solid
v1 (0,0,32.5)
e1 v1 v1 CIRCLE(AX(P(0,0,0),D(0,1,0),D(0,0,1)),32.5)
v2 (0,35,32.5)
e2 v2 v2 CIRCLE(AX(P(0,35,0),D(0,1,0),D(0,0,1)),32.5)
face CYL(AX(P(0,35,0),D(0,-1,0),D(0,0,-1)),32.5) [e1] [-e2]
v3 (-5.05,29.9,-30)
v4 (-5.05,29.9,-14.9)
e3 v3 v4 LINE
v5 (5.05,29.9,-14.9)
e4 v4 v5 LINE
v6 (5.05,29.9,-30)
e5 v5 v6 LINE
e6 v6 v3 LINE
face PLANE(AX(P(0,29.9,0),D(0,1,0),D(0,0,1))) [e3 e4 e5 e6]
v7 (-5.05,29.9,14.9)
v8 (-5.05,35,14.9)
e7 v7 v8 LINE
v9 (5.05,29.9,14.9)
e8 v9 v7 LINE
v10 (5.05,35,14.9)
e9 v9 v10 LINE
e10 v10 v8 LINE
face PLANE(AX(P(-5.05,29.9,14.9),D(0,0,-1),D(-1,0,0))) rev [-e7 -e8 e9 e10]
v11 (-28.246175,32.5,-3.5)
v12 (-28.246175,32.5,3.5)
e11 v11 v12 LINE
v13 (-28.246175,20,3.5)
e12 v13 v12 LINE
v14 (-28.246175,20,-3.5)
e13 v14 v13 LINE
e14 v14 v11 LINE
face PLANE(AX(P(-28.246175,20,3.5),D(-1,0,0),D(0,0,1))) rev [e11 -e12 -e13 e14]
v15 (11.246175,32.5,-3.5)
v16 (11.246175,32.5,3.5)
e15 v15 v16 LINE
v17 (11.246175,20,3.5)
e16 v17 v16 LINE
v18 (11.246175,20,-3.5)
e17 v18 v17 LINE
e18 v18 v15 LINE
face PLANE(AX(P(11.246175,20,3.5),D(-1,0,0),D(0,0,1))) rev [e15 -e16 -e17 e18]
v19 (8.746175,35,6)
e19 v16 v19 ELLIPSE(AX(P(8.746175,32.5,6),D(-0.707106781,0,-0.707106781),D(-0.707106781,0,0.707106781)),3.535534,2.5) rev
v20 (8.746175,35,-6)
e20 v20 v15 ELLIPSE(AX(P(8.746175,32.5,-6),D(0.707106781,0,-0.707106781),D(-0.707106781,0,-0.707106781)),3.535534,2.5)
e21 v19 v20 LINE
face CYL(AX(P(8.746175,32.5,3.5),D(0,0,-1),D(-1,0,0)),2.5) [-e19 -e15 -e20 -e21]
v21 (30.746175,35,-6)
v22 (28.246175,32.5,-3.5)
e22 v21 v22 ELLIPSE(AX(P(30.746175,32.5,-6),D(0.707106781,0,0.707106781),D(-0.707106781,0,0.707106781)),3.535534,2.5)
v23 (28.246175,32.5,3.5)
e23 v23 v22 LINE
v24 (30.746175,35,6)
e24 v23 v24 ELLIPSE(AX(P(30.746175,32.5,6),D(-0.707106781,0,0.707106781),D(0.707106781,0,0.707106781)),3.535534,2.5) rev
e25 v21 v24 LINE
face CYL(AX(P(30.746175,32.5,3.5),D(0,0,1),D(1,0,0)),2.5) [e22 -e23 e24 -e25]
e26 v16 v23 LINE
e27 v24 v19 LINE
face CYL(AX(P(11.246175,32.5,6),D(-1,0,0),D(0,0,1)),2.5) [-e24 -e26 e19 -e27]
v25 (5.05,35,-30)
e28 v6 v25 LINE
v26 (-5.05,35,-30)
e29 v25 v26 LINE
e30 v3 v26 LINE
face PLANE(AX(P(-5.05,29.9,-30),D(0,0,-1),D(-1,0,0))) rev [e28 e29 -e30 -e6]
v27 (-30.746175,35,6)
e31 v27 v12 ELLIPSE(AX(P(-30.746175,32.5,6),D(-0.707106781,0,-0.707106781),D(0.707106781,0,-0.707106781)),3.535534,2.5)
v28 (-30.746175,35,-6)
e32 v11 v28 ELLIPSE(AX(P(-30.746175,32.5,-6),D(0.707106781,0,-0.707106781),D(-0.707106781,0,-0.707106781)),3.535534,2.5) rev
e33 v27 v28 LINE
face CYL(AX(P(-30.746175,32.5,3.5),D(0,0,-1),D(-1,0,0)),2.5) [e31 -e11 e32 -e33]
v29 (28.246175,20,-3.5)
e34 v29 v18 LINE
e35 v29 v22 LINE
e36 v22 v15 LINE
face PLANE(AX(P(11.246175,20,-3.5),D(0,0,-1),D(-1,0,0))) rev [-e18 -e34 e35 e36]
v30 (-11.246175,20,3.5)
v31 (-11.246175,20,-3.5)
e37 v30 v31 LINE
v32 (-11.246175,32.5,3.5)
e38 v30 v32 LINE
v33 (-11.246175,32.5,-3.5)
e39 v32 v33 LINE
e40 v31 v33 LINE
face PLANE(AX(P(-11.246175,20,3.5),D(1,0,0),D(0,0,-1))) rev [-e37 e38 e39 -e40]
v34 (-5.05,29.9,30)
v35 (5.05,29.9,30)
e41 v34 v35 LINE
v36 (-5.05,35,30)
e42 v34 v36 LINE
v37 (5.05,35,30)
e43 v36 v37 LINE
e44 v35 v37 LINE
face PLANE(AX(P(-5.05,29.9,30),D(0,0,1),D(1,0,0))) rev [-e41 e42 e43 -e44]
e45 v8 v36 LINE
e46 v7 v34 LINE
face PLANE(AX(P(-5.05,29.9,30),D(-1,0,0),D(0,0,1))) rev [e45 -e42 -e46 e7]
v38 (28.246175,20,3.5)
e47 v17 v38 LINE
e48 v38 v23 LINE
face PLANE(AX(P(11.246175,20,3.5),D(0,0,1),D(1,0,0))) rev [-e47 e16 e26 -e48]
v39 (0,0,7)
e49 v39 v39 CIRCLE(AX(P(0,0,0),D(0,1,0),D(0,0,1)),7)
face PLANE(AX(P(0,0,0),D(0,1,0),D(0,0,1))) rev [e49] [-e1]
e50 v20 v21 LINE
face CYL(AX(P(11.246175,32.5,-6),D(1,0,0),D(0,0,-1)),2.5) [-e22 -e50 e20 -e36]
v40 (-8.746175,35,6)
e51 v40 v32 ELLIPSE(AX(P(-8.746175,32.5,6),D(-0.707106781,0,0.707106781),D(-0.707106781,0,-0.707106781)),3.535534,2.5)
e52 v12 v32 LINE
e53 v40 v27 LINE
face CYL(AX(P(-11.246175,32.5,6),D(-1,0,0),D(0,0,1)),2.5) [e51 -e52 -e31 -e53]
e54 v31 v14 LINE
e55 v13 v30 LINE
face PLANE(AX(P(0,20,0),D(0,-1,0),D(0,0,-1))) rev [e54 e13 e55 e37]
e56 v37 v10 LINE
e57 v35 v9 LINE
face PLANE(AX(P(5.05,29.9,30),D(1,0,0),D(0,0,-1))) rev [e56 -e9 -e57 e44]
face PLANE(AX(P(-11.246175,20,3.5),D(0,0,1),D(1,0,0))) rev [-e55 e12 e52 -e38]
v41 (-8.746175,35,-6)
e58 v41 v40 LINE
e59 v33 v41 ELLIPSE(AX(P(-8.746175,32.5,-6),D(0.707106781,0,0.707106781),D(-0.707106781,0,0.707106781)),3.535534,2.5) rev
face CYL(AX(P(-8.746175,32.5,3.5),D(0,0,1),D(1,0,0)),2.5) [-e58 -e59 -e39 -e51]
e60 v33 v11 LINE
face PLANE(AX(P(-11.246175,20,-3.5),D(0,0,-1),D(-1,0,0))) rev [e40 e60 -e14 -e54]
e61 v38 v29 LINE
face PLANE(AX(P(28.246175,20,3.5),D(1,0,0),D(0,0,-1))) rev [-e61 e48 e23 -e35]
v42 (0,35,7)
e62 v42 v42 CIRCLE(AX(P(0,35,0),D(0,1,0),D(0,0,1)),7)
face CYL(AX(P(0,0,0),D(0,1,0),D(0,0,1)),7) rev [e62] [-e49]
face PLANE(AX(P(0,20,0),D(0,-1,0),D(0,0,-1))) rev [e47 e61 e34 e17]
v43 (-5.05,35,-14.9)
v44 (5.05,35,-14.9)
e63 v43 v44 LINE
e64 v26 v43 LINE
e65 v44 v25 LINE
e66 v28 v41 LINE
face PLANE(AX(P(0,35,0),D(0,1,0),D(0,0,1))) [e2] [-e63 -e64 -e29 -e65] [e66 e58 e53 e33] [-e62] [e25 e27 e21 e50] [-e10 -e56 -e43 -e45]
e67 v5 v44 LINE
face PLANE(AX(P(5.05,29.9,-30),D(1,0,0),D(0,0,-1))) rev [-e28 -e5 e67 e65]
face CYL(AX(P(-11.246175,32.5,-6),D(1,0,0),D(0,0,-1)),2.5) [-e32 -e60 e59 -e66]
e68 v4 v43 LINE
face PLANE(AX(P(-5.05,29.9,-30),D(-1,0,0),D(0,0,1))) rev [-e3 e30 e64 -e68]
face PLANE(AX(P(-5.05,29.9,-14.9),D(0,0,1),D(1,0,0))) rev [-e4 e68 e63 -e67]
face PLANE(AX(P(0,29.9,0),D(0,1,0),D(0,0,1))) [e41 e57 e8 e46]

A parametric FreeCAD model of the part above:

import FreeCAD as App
import Part
import Sketcher
from FreeCAD import Vector
Q = App.Units.Quantity


def edges_at(feature, points):
    """Names of the edges that pass closest to the given points."""
    edges = feature.Shape.Edges
    near = lambda p: min(range(len(edges)), key=lambda i: edges[i].distToShape(Part.Vertex(*p))[0])
    return sorted({f"Edge{near(p) + 1}" for p in points})


def add_polygon(sketch, points):
    """Adds a closed chain of lines whose ends are joined by coincident constraints."""
    first, n = sketch.GeometryCount, len(points)
    for a, b in zip(points, points[1:] + points[:1]):
        sketch.addGeometry(Part.LineSegment(App.Vector(*a, 0), App.Vector(*b, 0)), False)
    for i in range(n):
        sketch.addConstraint(Sketcher.Constraint("Coincident", first + i, 2, first + (i + 1) % n, 1))

doc = App.newDocument("Part")
body = doc.addObject("PartDesign::Body", "Body")

# Sketch on XZ plane
sketch1 = body.newObject("Sketcher::SketchObject", "Sketch")
sketch1.AttachmentSupport = (doc.getObject("XZ_Plane"), [""])
sketch1.MapMode = "FlatFace"
sketch1.addGeometry(Part.Circle(Vector(0, 0, 0), Vector(0, 0, 1), 32), False)
sketch1.addConstraint([
    Sketcher.Constraint("Coincident", 0, 3, -1, 1),
    Sketcher.Constraint("Diameter", 0, Q("65 mm")),
])
pad1 = body.newObject("PartDesign::Pad", "Pad")
pad1.Profile = sketch1
pad1.Length = 35
pad1.Reversed = True

# Sketch on XZ plane
sketch2 = body.newObject("Sketcher::SketchObject", "Sketch001")
sketch2.AttachmentSupport = (doc.getObject("XZ_Plane"), [""])
sketch2.MapMode = "FlatFace"
sketch2.AttachmentOffset = App.Placement(Vector(0, 0, -35), App.Rotation())
add_polygon(sketch2, [(-5, -30), (-5, -15), (5, -15), (5, -30)])  # lines 0-3
add_polygon(sketch2, [(-5, 15), (-5, 30), (5, 30), (5, 15)])  # lines 4-7
sketch2.addConstraint([
    Sketcher.Constraint("Vertical", 0),
    Sketcher.Constraint("Horizontal", 1),
    Sketcher.Constraint("Vertical", 2),
    Sketcher.Constraint("Horizontal", 3),
    Sketcher.Constraint("Vertical", 4),
    Sketcher.Constraint("Horizontal", 5),
    Sketcher.Constraint("Vertical", 6),
    Sketcher.Constraint("Horizontal", 7),
    Sketcher.Constraint("Symmetric", 2, 2, 4, 2, -1, 1),
    Sketcher.Constraint("Symmetric", 0, 2, 6, 2, -1, 1),
    Sketcher.Constraint("Vertical", 3, 2, 4, 2),
    Sketcher.Constraint("DistanceX", 1, 1, 1, 2, Q("10.1 mm")),
    Sketcher.Constraint("DistanceY", 0, 1, 0, 2, Q("15.1 mm")),
    Sketcher.Constraint("DistanceY", 2, 2, -1, 1, Q("30 mm")),
])
pocket1 = body.newObject("PartDesign::Pocket", "Pocket")
pocket1.Profile = sketch2
pocket1.Length = 5.1
pocket1.Reversed = True

# Sketch on XZ plane
sketch3 = body.newObject("Sketcher::SketchObject", "Sketch002")
sketch3.AttachmentSupport = (doc.getObject("XZ_Plane"), [""])
sketch3.MapMode = "FlatFace"
sketch3.AttachmentOffset = App.Placement(Vector(0, 0, -35), App.Rotation())
sketch3.addGeometry(Part.Circle(Vector(0, 0, 0), Vector(0, 0, 1), 7), False)
sketch3.addConstraint([
    Sketcher.Constraint("Coincident", 0, 3, -1, 1),
    Sketcher.Constraint("Diameter", 0, Q("14 mm")),
])
pocket2 = body.newObject("PartDesign::Pocket", "Pocket001")
pocket2.Profile = sketch3
pocket2.Type = "ThroughAll"
pocket2.Reversed = True

# Sketch on XZ plane
sketch4 = body.newObject("Sketcher::SketchObject", "Sketch003")
sketch4.AttachmentSupport = (doc.getObject("XZ_Plane"), [""])
sketch4.MapMode = "FlatFace"
sketch4.AttachmentOffset = App.Placement(Vector(0, 0, -35), App.Rotation())
add_polygon(sketch4, [(11, -4), (11, 4), (28, 4), (28, -4)])  # lines 0-3
add_polygon(sketch4, [(-28, -4), (-28, 4), (-11, 4), (-11, -4)])  # lines 4-7
sketch4.addConstraint([
    Sketcher.Constraint("Vertical", 0),
    Sketcher.Constraint("Horizontal", 1),
    Sketcher.Constraint("Vertical", 2),
    Sketcher.Constraint("Horizontal", 3),
    Sketcher.Constraint("Vertical", 4),
    Sketcher.Constraint("Horizontal", 5),
    Sketcher.Constraint("Vertical", 6),
    Sketcher.Constraint("Horizontal", 7),
    Sketcher.Constraint("Symmetric", 2, 2, 4, 2, -1, 1),
    Sketcher.Constraint("Symmetric", 0, 2, 6, 2, -1, 1),
    Sketcher.Constraint("Horizontal", 1, 2, 4, 2),
    Sketcher.Constraint("DistanceX", 1, 1, 1, 2, Q("17 mm")),
    Sketcher.Constraint("DistanceY", 0, 1, 0, 2, Q("7 mm")),
    Sketcher.Constraint("DistanceX", 4, 2, 0, 2, Q("39.492351 mm")),
])
pocket3 = body.newObject("PartDesign::Pocket", "Pocket002")
pocket3.Profile = sketch4
pocket3.Length = 15
pocket3.Reversed = True
doc.recompute()

fillet = body.newObject("PartDesign::Fillet", "Fillet")
fillet.Base = (pocket3, edges_at(pocket3, [
    (28.246, 35, 0),
    (19.746, 35, -3.5),
    (11.246, 35, 0),
    (19.746, 35, 3.5),
    (-19.746, 35, 3.5),
    (-11.246, 35, 0),
    (-19.746, 35, -3.5),
    (-28.246, 35, 0),
]))
fillet.Radius = 2.5

doc.recompute()
